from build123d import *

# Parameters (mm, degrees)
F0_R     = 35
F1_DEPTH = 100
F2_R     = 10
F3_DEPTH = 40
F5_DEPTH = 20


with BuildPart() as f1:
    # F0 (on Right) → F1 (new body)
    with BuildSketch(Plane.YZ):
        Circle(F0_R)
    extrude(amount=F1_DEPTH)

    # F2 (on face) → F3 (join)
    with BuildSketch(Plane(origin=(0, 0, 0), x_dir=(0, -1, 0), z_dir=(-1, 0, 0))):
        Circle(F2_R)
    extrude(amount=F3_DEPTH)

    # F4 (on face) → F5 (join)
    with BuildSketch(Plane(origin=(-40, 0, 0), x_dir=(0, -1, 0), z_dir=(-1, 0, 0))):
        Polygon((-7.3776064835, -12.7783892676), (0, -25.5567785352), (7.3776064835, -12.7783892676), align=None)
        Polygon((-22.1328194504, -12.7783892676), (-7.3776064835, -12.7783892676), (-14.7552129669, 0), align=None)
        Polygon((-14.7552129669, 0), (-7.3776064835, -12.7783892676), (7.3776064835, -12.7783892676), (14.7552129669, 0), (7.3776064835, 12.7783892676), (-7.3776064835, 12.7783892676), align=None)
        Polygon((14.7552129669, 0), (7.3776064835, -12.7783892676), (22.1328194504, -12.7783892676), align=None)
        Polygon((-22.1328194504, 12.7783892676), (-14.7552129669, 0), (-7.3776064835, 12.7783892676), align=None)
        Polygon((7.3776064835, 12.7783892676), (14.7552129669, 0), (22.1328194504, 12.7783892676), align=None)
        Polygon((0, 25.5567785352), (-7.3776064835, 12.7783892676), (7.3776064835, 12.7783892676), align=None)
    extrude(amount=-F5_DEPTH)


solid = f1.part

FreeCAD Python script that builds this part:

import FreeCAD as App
import Part
import Sketcher
from FreeCAD import Vector
Q = App.Units.Quantity

doc = App.newDocument("Part")
params = doc.addObject("Spreadsheet::Sheet", "Params")
for row, (alias, value) in enumerate([
    ("sketch1_diameter", "70 mm"),
    ("pad1_length", "100 mm"),
    ("sketch2_diameter", "20 mm"),
    ("pad2_length", "40 mm"),
    ("pad3_length", "20 mm"),
], start=1):
    params.set(f"A{row}", alias)
    params.set(f"B{row}", "=" + value)
    params.setAlias(f"B{row}", alias)

body = doc.addObject("PartDesign::Body", "Body")

# Sketch on YZ plane
sketch1 = doc.addObject("Sketcher::SketchObject", "Sketch")
body.addObject(sketch1)
sketch1.AttachmentSupport = (doc.YZ_Plane, [""])
sketch1.MapMode = "FlatFace"
sketch1.addGeometry(Part.Circle(Vector(0, 0, 0), Vector(0, 0, 1), 35), False)
sketch1.addConstraint(Sketcher.Constraint("Coincident", 0, 3, -1, 1))
sketch1.addConstraint(Sketcher.Constraint("Diameter", 0, Q("70 mm")))
sketch1.setExpression("Constraints[1]", "Params.sketch1_diameter")
pad1 = doc.addObject("PartDesign::Pad", "Pad")
body.addObject(pad1)
pad1.Profile = sketch1
pad1.setExpression("Length", "Params.pad1_length")

# Sketch on YZ plane
sketch2 = doc.addObject("Sketcher::SketchObject", "Sketch001")
body.addObject(sketch2)
sketch2.AttachmentSupport = (doc.YZ_Plane, [""])
sketch2.MapMode = "FlatFace"
sketch2.addGeometry(Part.Circle(Vector(0, 0, 0), Vector(0, 0, 1), 10), False)
sketch2.addConstraint(Sketcher.Constraint("Coincident", 0, 3, -1, 1))
sketch2.addConstraint(Sketcher.Constraint("Diameter", 0, Q("20 mm")))
sketch2.setExpression("Constraints[1]", "Params.sketch2_diameter")
pad2 = doc.addObject("PartDesign::Pad", "Pad001")
body.addObject(pad2)
pad2.Profile = sketch2
pad2.setExpression("Length", "Params.pad2_length")
pad2.Reversed = True

# Sketch on YZ plane
sketch3 = doc.addObject("Sketcher::SketchObject", "Sketch002")
body.addObject(sketch3)
sketch3.AttachmentSupport = (doc.YZ_Plane, [""])
sketch3.MapMode = "FlatFace"
sketch3.AttachmentOffset = App.Placement(Vector(0, 0, -40), App.Rotation())
sketch3.addGeometry(Part.LineSegment(Vector(7, -13, 0), Vector(0, -26, 0)), False)
sketch3.addGeometry(Part.LineSegment(Vector(0, -26, 0), Vector(-7, -13, 0)), False)
sketch3.addGeometry(Part.LineSegment(Vector(-7, -13, 0), Vector(-22, -13, 0)), False)
sketch3.addGeometry(Part.LineSegment(Vector(-22, -13, 0), Vector(-15, 0, 0)), False)
sketch3.addGeometry(Part.LineSegment(Vector(-15, 0, 0), Vector(-22, 13, 0)), False)
sketch3.addGeometry(Part.LineSegment(Vector(-22, 13, 0), Vector(-7, 13, 0)), False)
sketch3.addGeometry(Part.LineSegment(Vector(-7, 13, 0), Vector(0, 26, 0)), False)
sketch3.addGeometry(Part.LineSegment(Vector(0, 26, 0), Vector(7, 13, 0)), False)
sketch3.addGeometry(Part.LineSegment(Vector(7, 13, 0), Vector(22, 13, 0)), False)
sketch3.addGeometry(Part.LineSegment(Vector(22, 13, 0), Vector(15, 0, 0)), False)
sketch3.addGeometry(Part.LineSegment(Vector(15, 0, 0), Vector(22, -13, 0)), False)
sketch3.addGeometry(Part.LineSegment(Vector(22, -13, 0), Vector(7, -13, 0)), False)
sketch3.addConstraint(Sketcher.Constraint("Coincident", 0, 2, 1, 1))
sketch3.addConstraint(Sketcher.Constraint("Coincident", 1, 2, 2, 1))
sketch3.addConstraint(Sketcher.Constraint("Coincident", 2, 2, 3, 1))
sketch3.addConstraint(Sketcher.Constraint("Coincident", 3, 2, 4, 1))
sketch3.addConstraint(Sketcher.Constraint("Coincident", 4, 2, 5, 1))
sketch3.addConstraint(Sketcher.Constraint("Coincident", 5, 2, 6, 1))
sketch3.addConstraint(Sketcher.Constraint("Coincident", 6, 2, 7, 1))
sketch3.addConstraint(Sketcher.Constraint("Coincident", 7, 2, 8, 1))
sketch3.addConstraint(Sketcher.Constraint("Coincident", 8, 2, 9, 1))
sketch3.addConstraint(Sketcher.Constraint("Coincident", 9, 2, 10, 1))
sketch3.addConstraint(Sketcher.Constraint("Coincident", 10, 2, 11, 1))
sketch3.addConstraint(Sketcher.Constraint("Coincident", 11, 2, 0, 1))
sketch3.addConstraint(Sketcher.Constraint("Horizontal", 2))
sketch3.addConstraint(Sketcher.Constraint("Horizontal", 5))
sketch3.addConstraint(Sketcher.Constraint("Horizontal", 8))
sketch3.addConstraint(Sketcher.Constraint("Horizontal", 11))
sketch3.addConstraint(Sketcher.Constraint("Symmetric", 0, 2, 6, 2, -1, 1))
sketch3.addConstraint(Sketcher.Constraint("Symmetric", 1, 2, 7, 2, -1, 1))
sketch3.addConstraint(Sketcher.Constraint("Symmetric", 3, 2, 9, 2, -1, 1))
sketch3.addConstraint(Sketcher.Constraint("Symmetric", 4, 2, 10, 2, -1, 1))
sketch3.addConstraint(Sketcher.Constraint("Symmetric", 5, 2, 7, 2, -2))
sketch3.addConstraint(Sketcher.Constraint("PointOnObject", 0, 2, -2))
sketch3.addConstraint(Sketcher.Constraint("PointOnObject", 3, 2, -1))
sketch3.addConstraint(Sketcher.Constraint("Parallel", 0, 3))
sketch3.addConstraint(Sketcher.Constraint("Parallel", 1, 4))
sketch3.addConstraint(Sketcher.Constraint("Parallel", 3, 6))
sketch3.addConstraint(Sketcher.Constraint("Parallel", 6, 9))
sketch3.addConstraint(Sketcher.Constraint("Equal", 1, 3))
sketch3.addConstraint(Sketcher.Constraint("Angle", 0, Q("-120 deg")))
sketch3.addConstraint(Sketcher.Constraint("DistanceX", 2, 2, 2, 1, Q("14.755213 mm")))
sketch3.addConstraint(Sketcher.Constraint("DistanceY", 0, 2, -1, 1, Q("25.556779 mm")))
pad3 = doc.addObject("PartDesign::Pad", "Pad002")
body.addObject(pad3)
pad3.Profile = sketch3
pad3.setExpression("Length", "Params.pad3_length")

doc.recompute()
